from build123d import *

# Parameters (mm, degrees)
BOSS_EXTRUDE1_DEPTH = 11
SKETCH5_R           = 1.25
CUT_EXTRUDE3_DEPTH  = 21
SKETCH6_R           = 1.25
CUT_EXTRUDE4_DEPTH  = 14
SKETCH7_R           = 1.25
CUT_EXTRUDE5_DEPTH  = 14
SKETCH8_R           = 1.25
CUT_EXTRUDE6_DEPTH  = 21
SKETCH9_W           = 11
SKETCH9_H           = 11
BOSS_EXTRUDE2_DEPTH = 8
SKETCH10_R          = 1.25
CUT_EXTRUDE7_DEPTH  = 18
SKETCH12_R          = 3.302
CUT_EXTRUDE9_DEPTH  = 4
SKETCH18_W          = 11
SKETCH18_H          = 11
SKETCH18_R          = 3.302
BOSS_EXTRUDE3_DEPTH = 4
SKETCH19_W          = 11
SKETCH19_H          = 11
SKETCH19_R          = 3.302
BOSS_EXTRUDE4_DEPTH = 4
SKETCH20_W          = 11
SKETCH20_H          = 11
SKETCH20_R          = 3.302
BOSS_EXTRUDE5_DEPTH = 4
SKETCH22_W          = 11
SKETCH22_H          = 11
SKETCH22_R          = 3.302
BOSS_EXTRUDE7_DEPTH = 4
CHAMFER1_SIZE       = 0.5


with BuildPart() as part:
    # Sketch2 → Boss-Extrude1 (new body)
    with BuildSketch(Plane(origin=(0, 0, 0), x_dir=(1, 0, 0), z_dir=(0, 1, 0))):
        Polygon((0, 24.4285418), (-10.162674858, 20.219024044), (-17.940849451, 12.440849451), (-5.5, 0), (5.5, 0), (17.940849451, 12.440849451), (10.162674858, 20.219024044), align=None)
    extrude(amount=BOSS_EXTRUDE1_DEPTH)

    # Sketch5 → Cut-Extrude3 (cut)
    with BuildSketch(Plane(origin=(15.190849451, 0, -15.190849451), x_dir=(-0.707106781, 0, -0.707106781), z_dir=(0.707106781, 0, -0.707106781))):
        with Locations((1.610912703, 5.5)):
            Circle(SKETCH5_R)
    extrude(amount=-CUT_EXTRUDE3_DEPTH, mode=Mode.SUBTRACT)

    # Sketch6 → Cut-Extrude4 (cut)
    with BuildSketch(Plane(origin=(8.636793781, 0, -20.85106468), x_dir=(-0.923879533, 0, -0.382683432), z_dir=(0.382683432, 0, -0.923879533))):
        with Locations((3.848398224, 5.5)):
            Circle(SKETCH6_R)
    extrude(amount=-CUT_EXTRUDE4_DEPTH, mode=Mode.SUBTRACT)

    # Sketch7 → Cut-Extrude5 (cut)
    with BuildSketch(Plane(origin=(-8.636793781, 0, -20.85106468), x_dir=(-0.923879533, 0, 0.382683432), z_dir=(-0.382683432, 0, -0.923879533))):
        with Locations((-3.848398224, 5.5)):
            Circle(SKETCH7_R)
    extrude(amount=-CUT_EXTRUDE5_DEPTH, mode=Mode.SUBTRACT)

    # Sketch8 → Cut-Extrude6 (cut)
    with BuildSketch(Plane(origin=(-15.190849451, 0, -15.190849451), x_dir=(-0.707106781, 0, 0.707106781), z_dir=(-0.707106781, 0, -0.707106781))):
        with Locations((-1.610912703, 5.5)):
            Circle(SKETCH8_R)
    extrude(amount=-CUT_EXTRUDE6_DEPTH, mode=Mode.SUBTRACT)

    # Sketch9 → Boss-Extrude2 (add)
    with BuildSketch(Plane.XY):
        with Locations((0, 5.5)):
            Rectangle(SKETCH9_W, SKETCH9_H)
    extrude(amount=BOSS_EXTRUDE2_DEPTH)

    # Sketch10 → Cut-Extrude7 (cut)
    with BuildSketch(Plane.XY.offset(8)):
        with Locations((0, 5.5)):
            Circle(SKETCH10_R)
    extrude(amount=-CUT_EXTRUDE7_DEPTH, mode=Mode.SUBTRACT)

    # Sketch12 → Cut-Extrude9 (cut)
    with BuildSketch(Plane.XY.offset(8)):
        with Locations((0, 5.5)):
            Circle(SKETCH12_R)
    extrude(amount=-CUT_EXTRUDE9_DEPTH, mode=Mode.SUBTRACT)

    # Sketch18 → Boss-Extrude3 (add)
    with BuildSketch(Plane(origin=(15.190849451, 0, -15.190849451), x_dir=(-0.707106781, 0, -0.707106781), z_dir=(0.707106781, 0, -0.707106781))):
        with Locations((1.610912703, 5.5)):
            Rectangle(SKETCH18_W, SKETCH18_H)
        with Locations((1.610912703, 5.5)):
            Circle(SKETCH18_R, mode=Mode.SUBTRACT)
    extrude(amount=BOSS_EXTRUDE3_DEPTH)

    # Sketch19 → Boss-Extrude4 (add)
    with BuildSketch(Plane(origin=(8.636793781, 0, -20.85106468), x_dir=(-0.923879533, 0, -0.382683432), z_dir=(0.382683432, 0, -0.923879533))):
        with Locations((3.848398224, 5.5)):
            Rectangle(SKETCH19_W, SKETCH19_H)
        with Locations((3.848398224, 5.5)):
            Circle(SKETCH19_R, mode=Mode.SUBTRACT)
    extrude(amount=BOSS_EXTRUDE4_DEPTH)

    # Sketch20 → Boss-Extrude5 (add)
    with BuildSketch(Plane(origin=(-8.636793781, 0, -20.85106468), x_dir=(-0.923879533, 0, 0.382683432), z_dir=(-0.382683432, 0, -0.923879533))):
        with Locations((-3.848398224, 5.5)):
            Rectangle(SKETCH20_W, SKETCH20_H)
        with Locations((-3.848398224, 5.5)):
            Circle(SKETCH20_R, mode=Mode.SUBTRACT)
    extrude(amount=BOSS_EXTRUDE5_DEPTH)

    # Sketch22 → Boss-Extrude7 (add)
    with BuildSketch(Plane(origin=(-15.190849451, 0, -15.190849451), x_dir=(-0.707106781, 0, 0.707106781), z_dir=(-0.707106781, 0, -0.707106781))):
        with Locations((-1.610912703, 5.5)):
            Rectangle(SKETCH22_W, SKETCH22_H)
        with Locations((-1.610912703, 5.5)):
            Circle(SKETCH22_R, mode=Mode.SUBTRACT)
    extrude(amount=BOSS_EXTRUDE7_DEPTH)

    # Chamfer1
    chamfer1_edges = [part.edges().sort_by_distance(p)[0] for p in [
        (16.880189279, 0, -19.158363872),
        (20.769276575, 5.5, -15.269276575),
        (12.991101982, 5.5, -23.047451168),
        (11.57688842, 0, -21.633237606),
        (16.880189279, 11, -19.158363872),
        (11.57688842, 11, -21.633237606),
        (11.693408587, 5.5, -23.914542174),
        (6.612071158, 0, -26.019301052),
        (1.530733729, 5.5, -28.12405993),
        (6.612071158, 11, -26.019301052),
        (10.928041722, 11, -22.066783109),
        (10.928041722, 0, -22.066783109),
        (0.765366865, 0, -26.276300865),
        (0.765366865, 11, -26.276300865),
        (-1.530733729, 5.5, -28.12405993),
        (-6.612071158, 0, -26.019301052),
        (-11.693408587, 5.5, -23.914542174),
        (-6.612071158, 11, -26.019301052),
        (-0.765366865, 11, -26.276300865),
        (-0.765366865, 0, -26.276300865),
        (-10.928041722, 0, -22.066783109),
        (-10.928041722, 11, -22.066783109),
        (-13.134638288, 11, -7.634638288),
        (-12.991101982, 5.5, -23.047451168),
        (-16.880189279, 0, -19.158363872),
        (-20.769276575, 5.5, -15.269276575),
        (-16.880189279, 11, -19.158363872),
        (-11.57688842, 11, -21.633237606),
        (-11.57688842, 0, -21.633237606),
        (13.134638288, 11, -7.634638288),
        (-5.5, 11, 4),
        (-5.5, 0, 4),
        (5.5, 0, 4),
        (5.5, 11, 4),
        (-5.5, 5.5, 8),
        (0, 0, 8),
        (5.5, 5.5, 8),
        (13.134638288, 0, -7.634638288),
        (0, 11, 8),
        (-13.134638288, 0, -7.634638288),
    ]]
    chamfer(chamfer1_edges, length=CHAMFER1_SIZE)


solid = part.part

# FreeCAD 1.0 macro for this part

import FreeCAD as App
import Part
import Sketcher
from FreeCAD import Vector
Q = App.Units.Quantity


def edges_at(feature, points):
    """Names of the edges that pass closest to the given points."""
    edges = feature.Shape.Edges
    near = lambda p: min(range(len(edges)), key=lambda i: edges[i].distToShape(Part.Vertex(*p))[0])
    return sorted({f"Edge{near(p) + 1}" for p in points})


def add_polygon(sketch, points):
    """Adds a closed chain of lines whose ends are joined by coincident constraints."""
    first, n = sketch.GeometryCount, len(points)
    for a, b in zip(points, points[1:] + points[:1]):
        sketch.addGeometry(Part.LineSegment(App.Vector(*a, 0), App.Vector(*b, 0)), False)
    for i in range(n):
        sketch.addConstraint(Sketcher.Constraint("Coincident", first + i, 2, first + (i + 1) % n, 1))

doc = App.newDocument("Part")
body = doc.addObject("PartDesign::Body", "Body")

# Sketch on XZ plane
sketch1 = body.newObject("Sketcher::SketchObject", "Sketch")
sketch1.AttachmentSupport = (doc.getObject("XZ_Plane"), [""])
sketch1.MapMode = "FlatFace"
add_polygon(sketch1, [(0, -24.428542), (-10.162675, -20.219024), (-17.940849, -12.440849), (-5.5, 0), (5.5, 0), (17.940849, -12.440849), (10.162675, -20.219024)])  # lines 0-6
sketch1.addConstraint(Sketcher.Constraint("Horizontal", 3))
sketch1.addConstraint(Sketcher.Constraint("Symmetric", 2, 2, 3, 2, -1, 1))
sketch1.addConstraint(Sketcher.Constraint("Symmetric", 1, 2, 4, 2, -2))
sketch1.addConstraint(Sketcher.Constraint("Symmetric", 0, 2, 5, 2, -2))
sketch1.addConstraint(Sketcher.Constraint("PointOnObject", 6, 2, -2))
sketch1.addConstraint(Sketcher.Constraint("Perpendicular", 1, 2))
sketch1.addConstraint(Sketcher.Constraint("Perpendicular", 2, 4))
sketch1.addConstraint(Sketcher.Constraint("Equal", 0, 1))
sketch1.addConstraint(Sketcher.Constraint("DistanceX", 3, 1, 3, 2, Q("11 mm")))
sketch1.addConstraint(Sketcher.Constraint("Distance", 0, Q("11 mm")))
sketch1.addConstraint(Sketcher.Constraint("Angle", 0, Q("157.5 deg")))
pad1 = body.newObject("PartDesign::Pad", "Pad")
pad1.Profile = sketch1
pad1.Length = 11
pad1.Reversed = True

# Sketch on an angled plane
sketch2 = body.newObject("Sketcher::SketchObject", "Sketch001")
sketch2.Placement = App.Placement(Vector(15.190849, 0, -15.190849), App.Rotation(Vector(-0.707106781, 0, -0.707106781), Vector(0, 0.999999999, 0), Vector(0.707106781, 0, -0.707106781), "ZXY"))
sketch2.addGeometry(Part.Circle(Vector(1.610913, 5.5, 0), Vector(0, 0, 1), 1.25), False)
sketch2.addConstraint(Sketcher.Constraint("Diameter", 0, Q("2.5 mm")))
sketch2.addConstraint(Sketcher.Constraint("DistanceY", -1, 1, 0, 3, Q("5.5 mm")))
sketch2.addConstraint(Sketcher.Constraint("DistanceX", -1, 1, 0, 3, Q("1.610913 mm")))
pocket1 = body.newObject("PartDesign::Pocket", "Pocket")
pocket1.Profile = sketch2
pocket1.Length = 21

# Sketch on an angled plane
sketch3 = body.newObject("Sketcher::SketchObject", "Sketch002")
sketch3.Placement = App.Placement(Vector(8.636794, 0, -20.851065), App.Rotation(Vector(-0.923879533, 0, -0.382683432), Vector(0, 1.000000001, 0), Vector(0.382683432, 0, -0.923879533), "ZXY"))
sketch3.addGeometry(Part.Circle(Vector(3.848398, 5.5, 0), Vector(0, 0, 1), 1.25), False)
sketch3.addConstraint(Sketcher.Constraint("Diameter", 0, Q("2.5 mm")))
sketch3.addConstraint(Sketcher.Constraint("DistanceY", -1, 1, 0, 3, Q("5.5 mm")))
sketch3.addConstraint(Sketcher.Constraint("DistanceX", -1, 1, 0, 3, Q("3.848398 mm")))
pocket2 = body.newObject("PartDesign::Pocket", "Pocket001")
pocket2.Profile = sketch3
pocket2.Length = 14

# Sketch on an angled plane
sketch4 = body.newObject("Sketcher::SketchObject", "Sketch003")
sketch4.Placement = App.Placement(Vector(-8.636794, 0, -20.851065), App.Rotation(Vector(-0.923879533, 0, 0.382683432), Vector(0, 1.000000001, 0), Vector(-0.382683432, 0, -0.923879533), "ZXY"))
sketch4.addGeometry(Part.Circle(Vector(-3.848398, 5.5, 0), Vector(0, 0, 1), 1.25), False)
sketch4.addConstraint(Sketcher.Constraint("Diameter", 0, Q("2.5 mm")))
sketch4.addConstraint(Sketcher.Constraint("DistanceY", -1, 1, 0, 3, Q("5.5 mm")))
sketch4.addConstraint(Sketcher.Constraint("DistanceX", 0, 3, -1, 1, Q("3.848398 mm")))
pocket3 = body.newObject("PartDesign::Pocket", "Pocket002")
pocket3.Profile = sketch4
pocket3.Length = 14

# Sketch on an angled plane
sketch5 = body.newObject("Sketcher::SketchObject", "Sketch004")
sketch5.Placement = App.Placement(Vector(-15.190849, 0, -15.190849), App.Rotation(Vector(-0.707106781, 0, 0.707106781), Vector(0, 0.999999999, 0), Vector(-0.707106781, 0, -0.707106781), "ZXY"))
sketch5.addGeometry(Part.Circle(Vector(-1.610913, 5.5, 0), Vector(0, 0, 1), 1.25), False)
sketch5.addConstraint(Sketcher.Constraint("Diameter", 0, Q("2.5 mm")))
sketch5.addConstraint(Sketcher.Constraint("DistanceY", -1, 1, 0, 3, Q("5.5 mm")))
sketch5.addConstraint(Sketcher.Constraint("DistanceX", 0, 3, -1, 1, Q("1.610913 mm")))
pocket4 = body.newObject("PartDesign::Pocket", "Pocket003")
pocket4.Profile = sketch5
pocket4.Length = 21

# Sketch on XY plane
sketch6 = body.newObject("Sketcher::SketchObject", "Sketch005")
sketch6.AttachmentSupport = (doc.getObject("XY_Plane"), [""])
sketch6.MapMode = "FlatFace"
add_polygon(sketch6, [(-5.5, 11), (-5.5, 0), (5.5, 0), (5.5, 11)])  # lines 0-3
sketch6.addConstraint(Sketcher.Constraint("Vertical", 0))
sketch6.addConstraint(Sketcher.Constraint("Horizontal", 1))
sketch6.addConstraint(Sketcher.Constraint("Vertical", 2))
sketch6.addConstraint(Sketcher.Constraint("Horizontal", 3))
sketch6.addConstraint(Sketcher.Constraint("Symmetric", 0, 2, 1, 2, -1, 1))
sketch6.addConstraint(Sketcher.Constraint("Equal", 3, 0))
sketch6.addConstraint(Sketcher.Constraint("DistanceX", 1, 1, 1, 2, Q("11 mm")))
pad2 = body.newObject("PartDesign::Pad", "Pad001")
pad2.Profile = sketch6
pad2.Length = 8

# Sketch on XY plane
sketch7 = body.newObject("Sketcher::SketchObject", "Sketch006")
sketch7.AttachmentSupport = (doc.getObject("XY_Plane"), [""])
sketch7.MapMode = "FlatFace"
sketch7.AttachmentOffset = App.Placement(Vector(0, 0, 8), App.Rotation())
sketch7.addGeometry(Part.Circle(Vector(0, 5.5, 0), Vector(0, 0, 1), 1.25), False)
sketch7.addConstraint(Sketcher.Constraint("PointOnObject", 0, 3, -2))
sketch7.addConstraint(Sketcher.Constraint("Diameter", 0, Q("2.5 mm")))
sketch7.addConstraint(Sketcher.Constraint("DistanceY", -1, 1, 0, 3, Q("5.5 mm")))
pocket5 = body.newObject("PartDesign::Pocket", "Pocket004")
pocket5.Profile = sketch7
pocket5.Length = 18

# Sketch on XY plane
sketch8 = body.newObject("Sketcher::SketchObject", "Sketch007")
sketch8.AttachmentSupport = (doc.getObject("XY_Plane"), [""])
sketch8.MapMode = "FlatFace"
sketch8.AttachmentOffset = App.Placement(Vector(0, 0, 8), App.Rotation())
sketch8.addGeometry(Part.Circle(Vector(0, 5.5, 0), Vector(0, 0, 1), 3.302), False)
sketch8.addConstraint(Sketcher.Constraint("PointOnObject", 0, 3, -2))
sketch8.addConstraint(Sketcher.Constraint("Diameter", 0, Q("6.604 mm")))
sketch8.addConstraint(Sketcher.Constraint("DistanceY", -1, 1, 0, 3, Q("5.5 mm")))
pocket6 = body.newObject("PartDesign::Pocket", "Pocket005")
pocket6.Profile = sketch8
pocket6.Length = 4

# Sketch on an angled plane
sketch9 = body.newObject("Sketcher::SketchObject", "Sketch008")
sketch9.Placement = App.Placement(Vector(15.190849, 0, -15.190849), App.Rotation(Vector(-0.707106781, 0, -0.707106781), Vector(0, 0.999999999, 0), Vector(0.707106781, 0, -0.707106781), "ZXY"))
add_polygon(sketch9, [(-3.889087, 11), (-3.889087, 0), (7.110913, 0), (7.110913, 11)])  # lines 0-3
sketch9.addGeometry(Part.Circle(Vector(1.610913, 5.5, 0), Vector(0, 0, 1), 3.302), False)  # 4
sketch9.addConstraint(Sketcher.Constraint("Vertical", 0))
sketch9.addConstraint(Sketcher.Constraint("Horizontal", 1))
sketch9.addConstraint(Sketcher.Constraint("Vertical", 2))
sketch9.addConstraint(Sketcher.Constraint("Horizontal", 3))
sketch9.addConstraint(Sketcher.Constraint("PointOnObject", 0, 2, -1))
sketch9.addConstraint(Sketcher.Constraint("Equal", 3, 0))
sketch9.addConstraint(Sketcher.Constraint("DistanceX", 1, 1, 1, 2, Q("11 mm")))
sketch9.addConstraint(Sketcher.Constraint("Diameter", 4, Q("6.604 mm")))
sketch9.addConstraint(Sketcher.Constraint("DistanceY", -1, 1, 4, 3, Q("5.5 mm")))
sketch9.addConstraint(Sketcher.Constraint("DistanceX", 0, 2, 4, 3, Q("5.5 mm")))
sketch9.addConstraint(Sketcher.Constraint("DistanceX", -1, 1, 4, 3, Q("1.610913 mm")))
pad3 = body.newObject("PartDesign::Pad", "Pad002")
pad3.Profile = sketch9
pad3.Length = 4

# Sketch on an angled plane
sketch10 = body.newObject("Sketcher::SketchObject", "Sketch009")
sketch10.Placement = App.Placement(Vector(8.636794, 0, -20.851065), App.Rotation(Vector(-0.923879533, 0, -0.382683432), Vector(0, 1.000000001, 0), Vector(0.382683432, 0, -0.923879533), "ZXY"))
add_polygon(sketch10, [(-1.651602, 11), (-1.651602, 0), (9.348398, 0), (9.348398, 11)])  # lines 0-3
sketch10.addGeometry(Part.Circle(Vector(3.848398, 5.5, 0), Vector(0, 0, 1), 3.302), False)  # 4
sketch10.addConstraint(Sketcher.Constraint("Vertical", 0))
sketch10.addConstraint(Sketcher.Constraint("Horizontal", 1))
sketch10.addConstraint(Sketcher.Constraint("Vertical", 2))
sketch10.addConstraint(Sketcher.Constraint("Horizontal", 3))
sketch10.addConstraint(Sketcher.Constraint("PointOnObject", 0, 2, -1))
sketch10.addConstraint(Sketcher.Constraint("Equal", 3, 0))
sketch10.addConstraint(Sketcher.Constraint("DistanceX", 1, 1, 1, 2, Q("11 mm")))
sketch10.addConstraint(Sketcher.Constraint("Diameter", 4, Q("6.604 mm")))
sketch10.addConstraint(Sketcher.Constraint("DistanceY", -1, 1, 4, 3, Q("5.5 mm")))
sketch10.addConstraint(Sketcher.Constraint("DistanceX", 0, 2, 4, 3, Q("5.5 mm")))
sketch10.addConstraint(Sketcher.Constraint("DistanceX", -1, 1, 4, 3, Q("3.848398 mm")))
pad4 = body.newObject("PartDesign::Pad", "Pad003")
pad4.Profile = sketch10
pad4.Length = 4

# Sketch on an angled plane
sketch11 = body.newObject("Sketcher::SketchObject", "Sketch010")
sketch11.Placement = App.Placement(Vector(-8.636794, 0, -20.851065), App.Rotation(Vector(-0.923879533, 0, 0.382683432), Vector(0, 1.000000001, 0), Vector(-0.382683432, 0, -0.923879533), "ZXY"))
add_polygon(sketch11, [(-9.348398, 11), (-9.348398, 0), (1.651602, 0), (1.651602, 11)])  # lines 0-3
sketch11.addGeometry(Part.Circle(Vector(-3.848398, 5.5, 0), Vector(0, 0, 1), 3.302), False)  # 4
sketch11.addConstraint(Sketcher.Constraint("Vertical", 0))
sketch11.addConstraint(Sketcher.Constraint("Horizontal", 1))
sketch11.addConstraint(Sketcher.Constraint("Vertical", 2))
sketch11.addConstraint(Sketcher.Constraint("Horizontal", 3))
sketch11.addConstraint(Sketcher.Constraint("PointOnObject", 0, 2, -1))
sketch11.addConstraint(Sketcher.Constraint("Equal", 3, 0))
sketch11.addConstraint(Sketcher.Constraint("DistanceX", 1, 1, 1, 2, Q("11 mm")))
sketch11.addConstraint(Sketcher.Constraint("Diameter", 4, Q("6.604 mm")))
sketch11.addConstraint(Sketcher.Constraint("DistanceY", -1, 1, 4, 3, Q("5.5 mm")))
sketch11.addConstraint(Sketcher.Constraint("DistanceX", 0, 2, 4, 3, Q("5.5 mm")))
sketch11.addConstraint(Sketcher.Constraint("DistanceX", 4, 3, -1, 1, Q("3.848398 mm")))
pad5 = body.newObject("PartDesign::Pad", "Pad004")
pad5.Profile = sketch11
pad5.Length = 4

# Sketch on an angled plane
sketch12 = body.newObject("Sketcher::SketchObject", "Sketch011")
sketch12.Placement = App.Placement(Vector(-15.190849, 0, -15.190849), App.Rotation(Vector(-0.707106781, 0, 0.707106781), Vector(0, 0.999999999, 0), Vector(-0.707106781, 0, -0.707106781), "ZXY"))
add_polygon(sketch12, [(-7.110913, 11), (-7.110913, 0), (3.889087, 0), (3.889087, 11)])  # lines 0-3
sketch12.addGeometry(Part.Circle(Vector(-1.610913, 5.5, 0), Vector(0, 0, 1), 3.302), False)  # 4
sketch12.addConstraint(Sketcher.Constraint("Vertical", 0))
sketch12.addConstraint(Sketcher.Constraint("Horizontal", 1))
sketch12.addConstraint(Sketcher.Constraint("Vertical", 2))
sketch12.addConstraint(Sketcher.Constraint("Horizontal", 3))
sketch12.addConstraint(Sketcher.Constraint("PointOnObject", 0, 2, -1))
sketch12.addConstraint(Sketcher.Constraint("Equal", 3, 0))
sketch12.addConstraint(Sketcher.Constraint("DistanceX", 1, 1, 1, 2, Q("11 mm")))
sketch12.addConstraint(Sketcher.Constraint("Diameter", 4, Q("6.604 mm")))
sketch12.addConstraint(Sketcher.Constraint("DistanceY", -1, 1, 4, 3, Q("5.5 mm")))
sketch12.addConstraint(Sketcher.Constraint("DistanceX", 0, 2, 4, 3, Q("5.5 mm")))
sketch12.addConstraint(Sketcher.Constraint("DistanceX", 4, 3, -1, 1, Q("1.610913 mm")))
pad6 = body.newObject("PartDesign::Pad", "Pad005")
pad6.Profile = sketch12
pad6.Length = 4
doc.recompute()

chamfer = body.newObject("PartDesign::Chamfer", "Chamfer")
chamfer.Base = (pad6, edges_at(pad6, [
    (16.88, 0, -19.158),
    (20.769, 5.5, -15.269),
    (12.991, 5.5, -23.047),
    (11.577, 0, -21.633),
    (16.88, 11, -19.158),
    (11.577, 11, -21.633),
    (11.693, 5.5, -23.915),
    (6.612, 0, -26.019),
    (1.531, 5.5, -28.124),
    (6.612, 11, -26.019),
    (10.928, 11, -22.067),
    (10.928, 0, -22.067),
    (0.765, 0, -26.276),
    (0.765, 11, -26.276),
    (-1.531, 5.5, -28.124),
    (-6.612, 0, -26.019),
    (-11.693, 5.5, -23.915),
    (-6.612, 11, -26.019),
    (-0.765, 11, -26.276),
    (-0.765, 0, -26.276),
    (-10.928, 0, -22.067),
    (-10.928, 11, -22.067),
    (-11.72, 11, -6.22),
    (-12.991, 5.5, -23.047),
    (-16.88, 0, -19.158),
    (-20.769, 5.5, -15.269),
    (-16.88, 11, -19.158),
    (-11.577, 11, -21.633),
    (-11.577, 0, -21.633),
    (11.72, 11, -6.22),
    (-5.5, 11, 4),
    (-5.5, 0, 4),
    (5.5, 0, 4),
    (5.5, 11, 4),
    (-5.5, 5.5, 8),
    (0, 0, 8),
    (5.5, 5.5, 8),
    (11.72, 0, -6.22),
    (0, 11, 8),
    (-11.72, 0, -6.22),
]))
chamfer.Size = 0.5

doc.recompute()
